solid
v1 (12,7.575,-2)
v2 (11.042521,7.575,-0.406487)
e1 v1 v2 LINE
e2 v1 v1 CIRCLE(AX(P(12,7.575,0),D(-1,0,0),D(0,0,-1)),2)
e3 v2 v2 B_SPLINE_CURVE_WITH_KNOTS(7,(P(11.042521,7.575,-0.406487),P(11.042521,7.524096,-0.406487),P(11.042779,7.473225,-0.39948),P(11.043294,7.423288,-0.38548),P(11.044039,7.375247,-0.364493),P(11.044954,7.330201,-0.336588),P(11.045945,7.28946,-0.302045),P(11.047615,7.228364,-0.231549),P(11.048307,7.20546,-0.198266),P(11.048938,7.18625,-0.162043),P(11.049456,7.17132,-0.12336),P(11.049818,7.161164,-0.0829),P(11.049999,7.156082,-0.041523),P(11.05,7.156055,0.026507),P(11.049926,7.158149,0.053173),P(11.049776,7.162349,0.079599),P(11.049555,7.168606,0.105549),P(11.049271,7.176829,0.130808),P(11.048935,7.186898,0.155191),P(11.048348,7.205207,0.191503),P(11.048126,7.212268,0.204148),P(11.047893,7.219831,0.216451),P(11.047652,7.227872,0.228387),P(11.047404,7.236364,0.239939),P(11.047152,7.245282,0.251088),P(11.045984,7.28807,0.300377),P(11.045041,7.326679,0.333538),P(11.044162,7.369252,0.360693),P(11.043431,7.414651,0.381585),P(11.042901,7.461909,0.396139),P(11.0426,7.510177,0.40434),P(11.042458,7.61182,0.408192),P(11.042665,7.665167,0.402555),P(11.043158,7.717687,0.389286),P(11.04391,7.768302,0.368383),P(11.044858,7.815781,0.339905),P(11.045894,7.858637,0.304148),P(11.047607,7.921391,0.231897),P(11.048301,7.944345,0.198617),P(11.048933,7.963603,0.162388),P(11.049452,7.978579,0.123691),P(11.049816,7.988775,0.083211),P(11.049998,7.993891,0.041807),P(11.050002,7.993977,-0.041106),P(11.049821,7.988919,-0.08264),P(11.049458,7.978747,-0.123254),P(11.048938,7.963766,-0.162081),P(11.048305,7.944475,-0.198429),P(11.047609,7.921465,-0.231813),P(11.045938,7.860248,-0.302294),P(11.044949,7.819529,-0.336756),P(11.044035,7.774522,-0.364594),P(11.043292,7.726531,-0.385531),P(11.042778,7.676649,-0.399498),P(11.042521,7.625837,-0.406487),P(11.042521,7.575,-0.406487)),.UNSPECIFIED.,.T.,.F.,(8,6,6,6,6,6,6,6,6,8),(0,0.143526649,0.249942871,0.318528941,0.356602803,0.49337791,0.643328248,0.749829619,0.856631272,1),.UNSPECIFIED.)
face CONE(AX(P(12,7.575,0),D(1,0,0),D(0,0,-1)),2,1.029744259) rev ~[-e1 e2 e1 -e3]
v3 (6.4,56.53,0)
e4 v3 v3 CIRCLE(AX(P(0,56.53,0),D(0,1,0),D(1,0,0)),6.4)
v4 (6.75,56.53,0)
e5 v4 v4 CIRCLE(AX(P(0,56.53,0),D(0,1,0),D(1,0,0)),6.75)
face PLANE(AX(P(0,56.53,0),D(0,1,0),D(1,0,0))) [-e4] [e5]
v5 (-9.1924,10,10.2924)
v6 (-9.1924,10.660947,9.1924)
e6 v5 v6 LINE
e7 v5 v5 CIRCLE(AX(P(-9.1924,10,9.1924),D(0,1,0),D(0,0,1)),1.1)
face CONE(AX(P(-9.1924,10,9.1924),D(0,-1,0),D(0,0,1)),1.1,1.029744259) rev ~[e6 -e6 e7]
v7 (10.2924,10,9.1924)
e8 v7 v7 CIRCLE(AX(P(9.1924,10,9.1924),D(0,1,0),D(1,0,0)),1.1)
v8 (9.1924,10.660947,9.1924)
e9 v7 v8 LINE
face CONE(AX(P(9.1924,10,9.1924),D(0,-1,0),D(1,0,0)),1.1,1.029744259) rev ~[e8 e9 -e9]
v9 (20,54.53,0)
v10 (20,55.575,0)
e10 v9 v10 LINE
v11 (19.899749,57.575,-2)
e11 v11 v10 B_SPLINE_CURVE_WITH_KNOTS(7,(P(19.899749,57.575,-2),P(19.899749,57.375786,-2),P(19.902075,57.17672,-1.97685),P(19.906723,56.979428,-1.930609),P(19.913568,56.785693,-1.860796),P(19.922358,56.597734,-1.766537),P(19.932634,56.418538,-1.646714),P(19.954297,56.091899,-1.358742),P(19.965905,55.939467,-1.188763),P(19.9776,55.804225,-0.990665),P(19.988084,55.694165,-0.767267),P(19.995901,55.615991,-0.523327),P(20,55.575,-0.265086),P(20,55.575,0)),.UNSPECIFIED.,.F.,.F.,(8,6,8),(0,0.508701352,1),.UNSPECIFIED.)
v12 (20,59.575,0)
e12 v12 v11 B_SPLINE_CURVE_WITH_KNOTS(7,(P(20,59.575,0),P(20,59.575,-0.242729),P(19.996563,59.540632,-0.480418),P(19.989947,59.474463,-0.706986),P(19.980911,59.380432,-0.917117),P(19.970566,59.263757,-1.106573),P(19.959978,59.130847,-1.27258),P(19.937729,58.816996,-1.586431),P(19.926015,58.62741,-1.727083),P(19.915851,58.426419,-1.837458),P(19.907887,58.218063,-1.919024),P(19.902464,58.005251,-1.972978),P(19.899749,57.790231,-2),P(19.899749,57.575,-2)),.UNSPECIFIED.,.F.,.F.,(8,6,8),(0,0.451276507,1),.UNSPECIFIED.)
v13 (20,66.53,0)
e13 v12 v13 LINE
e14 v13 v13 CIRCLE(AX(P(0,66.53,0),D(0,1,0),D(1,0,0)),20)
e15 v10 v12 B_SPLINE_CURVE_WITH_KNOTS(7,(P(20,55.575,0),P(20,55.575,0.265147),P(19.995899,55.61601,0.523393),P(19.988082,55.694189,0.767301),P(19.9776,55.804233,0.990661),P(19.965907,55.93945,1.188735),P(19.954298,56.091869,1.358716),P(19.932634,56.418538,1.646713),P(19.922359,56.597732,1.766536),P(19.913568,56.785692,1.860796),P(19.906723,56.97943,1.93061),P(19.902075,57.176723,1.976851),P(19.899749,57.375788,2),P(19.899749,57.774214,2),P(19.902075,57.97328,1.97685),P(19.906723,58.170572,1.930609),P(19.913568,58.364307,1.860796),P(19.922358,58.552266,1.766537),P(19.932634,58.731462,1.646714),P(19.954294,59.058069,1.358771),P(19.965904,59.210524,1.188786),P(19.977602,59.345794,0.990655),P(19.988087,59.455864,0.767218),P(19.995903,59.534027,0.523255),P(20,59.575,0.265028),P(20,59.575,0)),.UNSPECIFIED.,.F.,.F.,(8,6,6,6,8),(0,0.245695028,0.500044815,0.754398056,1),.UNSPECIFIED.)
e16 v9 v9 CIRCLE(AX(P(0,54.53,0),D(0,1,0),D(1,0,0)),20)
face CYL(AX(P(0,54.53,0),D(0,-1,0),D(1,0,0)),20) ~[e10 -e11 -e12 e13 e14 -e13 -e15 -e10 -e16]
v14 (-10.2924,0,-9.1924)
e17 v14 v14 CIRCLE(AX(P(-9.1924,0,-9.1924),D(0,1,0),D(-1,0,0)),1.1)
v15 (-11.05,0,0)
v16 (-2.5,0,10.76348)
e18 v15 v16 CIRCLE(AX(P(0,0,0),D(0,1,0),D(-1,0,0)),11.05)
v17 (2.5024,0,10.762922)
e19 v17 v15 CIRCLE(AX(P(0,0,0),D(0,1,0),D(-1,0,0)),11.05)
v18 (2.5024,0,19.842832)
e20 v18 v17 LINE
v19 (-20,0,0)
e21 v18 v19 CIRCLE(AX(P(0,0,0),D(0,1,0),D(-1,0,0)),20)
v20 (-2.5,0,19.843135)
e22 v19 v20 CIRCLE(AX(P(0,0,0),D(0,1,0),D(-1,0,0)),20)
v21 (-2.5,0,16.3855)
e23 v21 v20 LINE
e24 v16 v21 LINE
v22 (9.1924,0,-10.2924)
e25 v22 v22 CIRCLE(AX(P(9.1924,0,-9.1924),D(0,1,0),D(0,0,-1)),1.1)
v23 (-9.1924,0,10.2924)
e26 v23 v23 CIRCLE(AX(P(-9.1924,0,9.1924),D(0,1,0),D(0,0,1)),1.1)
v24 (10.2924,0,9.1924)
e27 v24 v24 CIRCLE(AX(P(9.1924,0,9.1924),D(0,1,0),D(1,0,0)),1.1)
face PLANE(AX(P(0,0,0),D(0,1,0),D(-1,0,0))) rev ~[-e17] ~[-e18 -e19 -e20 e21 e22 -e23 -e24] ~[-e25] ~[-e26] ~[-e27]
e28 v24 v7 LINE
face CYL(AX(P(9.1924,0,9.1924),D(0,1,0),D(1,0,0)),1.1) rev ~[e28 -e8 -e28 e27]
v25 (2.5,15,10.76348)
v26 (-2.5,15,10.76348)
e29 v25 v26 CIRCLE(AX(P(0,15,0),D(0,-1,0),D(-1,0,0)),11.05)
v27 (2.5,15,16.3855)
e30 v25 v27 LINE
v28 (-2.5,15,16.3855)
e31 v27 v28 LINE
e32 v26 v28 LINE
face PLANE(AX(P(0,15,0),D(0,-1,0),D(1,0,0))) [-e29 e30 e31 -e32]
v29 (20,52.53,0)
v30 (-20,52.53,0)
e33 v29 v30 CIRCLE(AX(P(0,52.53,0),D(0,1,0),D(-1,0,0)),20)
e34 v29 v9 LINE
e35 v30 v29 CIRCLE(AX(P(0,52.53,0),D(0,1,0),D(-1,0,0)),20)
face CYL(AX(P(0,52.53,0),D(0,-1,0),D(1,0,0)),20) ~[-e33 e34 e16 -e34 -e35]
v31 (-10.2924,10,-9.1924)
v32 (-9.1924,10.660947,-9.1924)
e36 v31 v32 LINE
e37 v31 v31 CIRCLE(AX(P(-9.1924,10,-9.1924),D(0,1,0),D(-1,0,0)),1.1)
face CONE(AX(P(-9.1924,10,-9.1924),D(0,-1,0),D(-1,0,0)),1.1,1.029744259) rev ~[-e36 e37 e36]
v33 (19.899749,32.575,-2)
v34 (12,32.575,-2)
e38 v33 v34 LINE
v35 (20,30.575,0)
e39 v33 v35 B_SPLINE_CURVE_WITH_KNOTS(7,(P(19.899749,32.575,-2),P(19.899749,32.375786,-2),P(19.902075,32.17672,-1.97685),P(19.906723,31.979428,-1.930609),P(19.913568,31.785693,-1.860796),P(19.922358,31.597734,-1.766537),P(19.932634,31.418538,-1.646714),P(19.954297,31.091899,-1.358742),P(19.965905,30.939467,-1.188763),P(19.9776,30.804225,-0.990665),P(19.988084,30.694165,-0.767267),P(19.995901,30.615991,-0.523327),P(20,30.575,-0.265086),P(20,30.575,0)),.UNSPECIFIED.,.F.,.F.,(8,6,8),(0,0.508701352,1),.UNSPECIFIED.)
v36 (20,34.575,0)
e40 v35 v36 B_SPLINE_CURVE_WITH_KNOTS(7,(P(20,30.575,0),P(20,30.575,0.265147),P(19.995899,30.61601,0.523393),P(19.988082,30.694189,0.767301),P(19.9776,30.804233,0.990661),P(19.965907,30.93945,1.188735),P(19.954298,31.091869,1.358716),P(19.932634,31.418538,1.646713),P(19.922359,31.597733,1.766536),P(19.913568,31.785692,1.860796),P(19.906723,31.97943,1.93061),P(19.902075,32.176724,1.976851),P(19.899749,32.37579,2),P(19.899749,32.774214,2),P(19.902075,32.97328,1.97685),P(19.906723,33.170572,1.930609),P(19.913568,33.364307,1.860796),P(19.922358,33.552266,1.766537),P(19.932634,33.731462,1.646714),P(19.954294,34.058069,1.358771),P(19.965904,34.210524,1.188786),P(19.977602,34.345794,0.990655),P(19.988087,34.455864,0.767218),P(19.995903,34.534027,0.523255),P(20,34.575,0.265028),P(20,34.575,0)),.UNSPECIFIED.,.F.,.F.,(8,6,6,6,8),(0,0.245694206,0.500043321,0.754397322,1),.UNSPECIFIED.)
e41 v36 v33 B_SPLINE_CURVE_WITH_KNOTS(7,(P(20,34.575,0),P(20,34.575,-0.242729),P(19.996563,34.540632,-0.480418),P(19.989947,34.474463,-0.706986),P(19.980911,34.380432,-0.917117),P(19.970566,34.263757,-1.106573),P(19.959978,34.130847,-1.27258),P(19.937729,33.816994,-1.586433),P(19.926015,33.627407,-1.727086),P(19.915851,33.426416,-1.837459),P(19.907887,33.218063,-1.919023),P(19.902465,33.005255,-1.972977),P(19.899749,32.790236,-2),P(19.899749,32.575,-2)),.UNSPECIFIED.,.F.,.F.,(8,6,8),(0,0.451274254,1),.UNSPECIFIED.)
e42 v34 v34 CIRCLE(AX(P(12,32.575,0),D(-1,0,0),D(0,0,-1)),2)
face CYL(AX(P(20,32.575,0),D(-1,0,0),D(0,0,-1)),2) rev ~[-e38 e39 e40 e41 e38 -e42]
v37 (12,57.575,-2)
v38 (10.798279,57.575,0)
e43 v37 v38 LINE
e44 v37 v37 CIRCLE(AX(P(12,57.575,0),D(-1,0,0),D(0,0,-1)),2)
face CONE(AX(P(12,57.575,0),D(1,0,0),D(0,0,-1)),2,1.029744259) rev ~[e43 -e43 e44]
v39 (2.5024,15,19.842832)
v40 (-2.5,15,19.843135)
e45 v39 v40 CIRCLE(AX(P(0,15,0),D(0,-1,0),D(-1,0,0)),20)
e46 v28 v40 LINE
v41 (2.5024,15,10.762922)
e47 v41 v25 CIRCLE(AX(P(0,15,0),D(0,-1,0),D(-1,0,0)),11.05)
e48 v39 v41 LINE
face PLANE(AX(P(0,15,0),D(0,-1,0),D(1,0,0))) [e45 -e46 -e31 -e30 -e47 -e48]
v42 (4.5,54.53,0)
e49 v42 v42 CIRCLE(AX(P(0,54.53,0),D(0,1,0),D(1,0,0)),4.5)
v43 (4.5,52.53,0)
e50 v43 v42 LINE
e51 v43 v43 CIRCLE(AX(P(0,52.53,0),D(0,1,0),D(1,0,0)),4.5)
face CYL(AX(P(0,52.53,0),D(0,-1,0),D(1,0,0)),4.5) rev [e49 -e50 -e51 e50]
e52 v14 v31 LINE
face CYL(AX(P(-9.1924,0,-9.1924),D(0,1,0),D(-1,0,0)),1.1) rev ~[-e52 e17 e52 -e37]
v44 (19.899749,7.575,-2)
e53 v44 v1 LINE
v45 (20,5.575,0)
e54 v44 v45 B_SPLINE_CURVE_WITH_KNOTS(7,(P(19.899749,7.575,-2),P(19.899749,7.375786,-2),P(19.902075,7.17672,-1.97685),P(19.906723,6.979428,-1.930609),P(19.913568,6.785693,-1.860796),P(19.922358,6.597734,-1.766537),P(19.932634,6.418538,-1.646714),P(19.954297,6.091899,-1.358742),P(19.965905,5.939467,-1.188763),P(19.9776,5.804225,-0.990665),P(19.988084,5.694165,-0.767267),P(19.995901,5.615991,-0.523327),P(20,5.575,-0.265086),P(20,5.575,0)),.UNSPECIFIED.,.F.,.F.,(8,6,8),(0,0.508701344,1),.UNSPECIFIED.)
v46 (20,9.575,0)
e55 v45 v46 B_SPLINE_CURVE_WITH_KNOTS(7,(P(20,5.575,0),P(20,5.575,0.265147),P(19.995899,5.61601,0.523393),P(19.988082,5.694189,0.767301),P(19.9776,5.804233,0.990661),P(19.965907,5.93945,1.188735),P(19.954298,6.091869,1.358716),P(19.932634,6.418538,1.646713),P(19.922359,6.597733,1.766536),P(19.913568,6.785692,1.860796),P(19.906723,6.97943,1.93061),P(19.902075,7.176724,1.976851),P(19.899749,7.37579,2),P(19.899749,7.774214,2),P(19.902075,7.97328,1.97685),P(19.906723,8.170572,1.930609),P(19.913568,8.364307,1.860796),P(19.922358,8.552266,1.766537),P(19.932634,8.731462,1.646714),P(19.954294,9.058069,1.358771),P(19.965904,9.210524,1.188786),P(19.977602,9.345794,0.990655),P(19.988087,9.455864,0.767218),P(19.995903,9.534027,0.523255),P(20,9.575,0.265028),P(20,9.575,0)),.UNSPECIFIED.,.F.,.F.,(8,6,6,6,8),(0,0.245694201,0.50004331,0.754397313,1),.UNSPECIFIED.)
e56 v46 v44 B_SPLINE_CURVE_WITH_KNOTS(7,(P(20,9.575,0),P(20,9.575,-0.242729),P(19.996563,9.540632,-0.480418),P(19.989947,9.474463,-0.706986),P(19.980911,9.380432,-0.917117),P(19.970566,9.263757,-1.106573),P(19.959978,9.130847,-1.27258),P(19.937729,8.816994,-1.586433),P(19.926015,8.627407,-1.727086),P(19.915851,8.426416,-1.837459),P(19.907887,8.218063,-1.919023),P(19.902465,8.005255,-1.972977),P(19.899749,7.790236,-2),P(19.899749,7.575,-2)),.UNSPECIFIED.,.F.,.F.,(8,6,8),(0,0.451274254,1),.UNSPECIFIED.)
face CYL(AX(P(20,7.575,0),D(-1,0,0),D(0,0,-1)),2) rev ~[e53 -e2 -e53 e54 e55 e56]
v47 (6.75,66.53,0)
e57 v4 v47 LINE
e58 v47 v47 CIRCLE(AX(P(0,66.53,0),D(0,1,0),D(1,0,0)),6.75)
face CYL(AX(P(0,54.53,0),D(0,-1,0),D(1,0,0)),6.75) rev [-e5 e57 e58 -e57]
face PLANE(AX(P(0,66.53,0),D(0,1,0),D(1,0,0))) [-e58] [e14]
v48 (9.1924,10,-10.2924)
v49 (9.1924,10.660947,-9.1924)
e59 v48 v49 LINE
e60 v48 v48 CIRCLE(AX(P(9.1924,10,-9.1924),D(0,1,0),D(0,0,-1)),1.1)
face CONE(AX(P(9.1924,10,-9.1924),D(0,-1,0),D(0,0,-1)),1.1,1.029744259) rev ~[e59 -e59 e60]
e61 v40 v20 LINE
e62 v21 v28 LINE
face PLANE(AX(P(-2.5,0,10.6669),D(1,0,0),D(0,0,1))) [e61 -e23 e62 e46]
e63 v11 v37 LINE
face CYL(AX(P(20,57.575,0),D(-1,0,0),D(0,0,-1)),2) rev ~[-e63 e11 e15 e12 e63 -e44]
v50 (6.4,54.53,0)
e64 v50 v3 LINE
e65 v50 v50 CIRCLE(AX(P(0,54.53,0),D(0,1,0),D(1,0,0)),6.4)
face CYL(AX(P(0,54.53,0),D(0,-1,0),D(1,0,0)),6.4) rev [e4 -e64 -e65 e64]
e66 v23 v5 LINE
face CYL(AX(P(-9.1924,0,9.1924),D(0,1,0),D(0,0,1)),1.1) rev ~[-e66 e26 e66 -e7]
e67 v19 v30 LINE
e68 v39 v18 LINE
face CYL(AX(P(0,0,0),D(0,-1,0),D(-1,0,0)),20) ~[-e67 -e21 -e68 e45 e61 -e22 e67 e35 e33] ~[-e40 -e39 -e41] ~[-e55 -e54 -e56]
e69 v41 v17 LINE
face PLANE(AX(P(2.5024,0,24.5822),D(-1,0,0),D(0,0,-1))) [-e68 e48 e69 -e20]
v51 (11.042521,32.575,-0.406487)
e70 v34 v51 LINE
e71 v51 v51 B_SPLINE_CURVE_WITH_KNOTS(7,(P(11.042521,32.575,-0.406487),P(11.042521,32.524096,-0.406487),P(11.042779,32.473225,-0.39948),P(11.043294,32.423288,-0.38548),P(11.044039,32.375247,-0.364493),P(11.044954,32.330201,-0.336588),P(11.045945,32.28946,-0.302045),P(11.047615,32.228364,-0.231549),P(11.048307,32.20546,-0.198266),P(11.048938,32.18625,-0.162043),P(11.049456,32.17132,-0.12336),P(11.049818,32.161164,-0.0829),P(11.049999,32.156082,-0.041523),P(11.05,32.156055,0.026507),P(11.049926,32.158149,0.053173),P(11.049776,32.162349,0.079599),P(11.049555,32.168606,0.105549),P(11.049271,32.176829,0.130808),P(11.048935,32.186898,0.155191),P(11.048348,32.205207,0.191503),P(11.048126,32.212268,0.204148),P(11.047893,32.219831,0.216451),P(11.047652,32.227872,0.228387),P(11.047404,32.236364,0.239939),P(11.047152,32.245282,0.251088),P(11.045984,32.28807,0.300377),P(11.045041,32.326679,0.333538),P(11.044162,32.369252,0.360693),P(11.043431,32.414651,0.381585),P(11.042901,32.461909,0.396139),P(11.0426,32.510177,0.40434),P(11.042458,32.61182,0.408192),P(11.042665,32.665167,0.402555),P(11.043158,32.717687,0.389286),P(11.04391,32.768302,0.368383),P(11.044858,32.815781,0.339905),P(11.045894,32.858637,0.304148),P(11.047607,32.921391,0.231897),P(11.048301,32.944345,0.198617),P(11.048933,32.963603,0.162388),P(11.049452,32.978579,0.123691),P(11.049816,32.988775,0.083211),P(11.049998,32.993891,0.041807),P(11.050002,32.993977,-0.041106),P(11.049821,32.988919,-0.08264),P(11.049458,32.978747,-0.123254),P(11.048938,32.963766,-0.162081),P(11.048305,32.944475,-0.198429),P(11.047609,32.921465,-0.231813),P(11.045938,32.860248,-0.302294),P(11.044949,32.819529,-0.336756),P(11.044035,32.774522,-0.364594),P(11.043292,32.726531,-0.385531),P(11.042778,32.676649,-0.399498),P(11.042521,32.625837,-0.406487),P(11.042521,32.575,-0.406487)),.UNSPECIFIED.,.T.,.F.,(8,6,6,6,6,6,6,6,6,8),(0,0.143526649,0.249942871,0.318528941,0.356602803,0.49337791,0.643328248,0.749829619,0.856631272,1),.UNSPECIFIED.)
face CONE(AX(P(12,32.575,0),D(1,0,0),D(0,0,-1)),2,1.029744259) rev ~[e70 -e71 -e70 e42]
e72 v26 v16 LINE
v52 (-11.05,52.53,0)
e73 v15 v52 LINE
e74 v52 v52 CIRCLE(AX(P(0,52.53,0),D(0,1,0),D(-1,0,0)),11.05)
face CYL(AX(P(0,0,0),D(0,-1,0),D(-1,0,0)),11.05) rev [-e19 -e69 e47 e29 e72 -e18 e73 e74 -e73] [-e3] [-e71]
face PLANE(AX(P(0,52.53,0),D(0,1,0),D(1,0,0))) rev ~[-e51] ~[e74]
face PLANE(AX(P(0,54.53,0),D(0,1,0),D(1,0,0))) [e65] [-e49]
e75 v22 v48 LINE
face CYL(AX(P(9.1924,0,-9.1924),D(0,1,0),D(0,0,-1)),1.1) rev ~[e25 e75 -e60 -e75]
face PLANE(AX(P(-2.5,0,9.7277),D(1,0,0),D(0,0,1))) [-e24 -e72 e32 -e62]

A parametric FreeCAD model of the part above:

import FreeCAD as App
import Part
import Sketcher

V = App.Vector


def add_polygon(sketch, points):
    """Adds a closed chain of lines whose ends are joined by coincident constraints."""
    first, n = sketch.GeometryCount, len(points)
    for a, b in zip(points, points[1:] + points[:1]):
        sketch.addGeometry(Part.LineSegment(App.Vector(*a, 0), App.Vector(*b, 0)), False)
    for i in range(n):
        sketch.addConstraint(Sketcher.Constraint("Coincident", first + i, 2, first + (i + 1) % n, 1))

doc = App.newDocument("Part")
body = doc.addObject("PartDesign::Body", "Body")

# Sketch on XZ plane
sketch1 = body.newObject("Sketcher::SketchObject", "Sketch")
sketch1.AttachmentSupport = (doc.getObject("XZ_Plane"), [""])
sketch1.MapMode = "FlatFace"
sketch1.addGeometry(Part.Circle(V(0, 0, 0), V(0, 0, 1), 20), False)
sketch1.addGeometry(Part.Circle(V(0, 0, 0), V(0, 0, 1), 11.05), False)
sketch1.addConstraint(Sketcher.Constraint("Coincident", 0, 3, -1, 1))
sketch1.addConstraint(Sketcher.Constraint("Coincident", 1, 3, -1, 1))
sketch1.addConstraint(Sketcher.Constraint("Diameter", 0, 40.0))
sketch1.addConstraint(Sketcher.Constraint("Diameter", 1, 22.1))
pad1 = body.newObject("PartDesign::Pad", "Pad")
pad1.Profile = sketch1
pad1.Length = 52.53
pad1.Reversed = True

# Sketch on XZ plane
sketch2 = body.newObject("Sketcher::SketchObject", "Sketch001")
sketch2.AttachmentSupport = (doc.getObject("XZ_Plane"), [""])
sketch2.MapMode = "FlatFace"
sketch2.addGeometry(Part.Circle(V(9.1924, -9.1924, 0), V(0, 0, 1), 1.1), False)
sketch2.addConstraint(Sketcher.Constraint("Diameter", 0, 2.2))
sketch2.addConstraint(Sketcher.Constraint("DistanceX", -1, 1, 0, 3, 9.1924))
sketch2.addConstraint(Sketcher.Constraint("DistanceY", 0, 3, -1, 1, 9.1924))
doc.recompute()
hole = body.newObject("PartDesign::Hole", "Hole")
hole.Profile = sketch2
hole.ThreadType = "None"
hole.Diameter = 2.2
hole.DepthType = "Dimension"
hole.Depth = 10
hole.DrillPoint = "Angled"
hole.DrillPointAngle = 118
doc.recompute()

polarpattern = body.newObject("PartDesign::PolarPattern", "PolarPattern")
polarpattern.Originals = [hole]
polarpattern.Axis = (doc.getObject("Y_Axis"), [""])
polarpattern.Angle = 360
polarpattern.Occurrences = 4
body.Tip = polarpattern

# Sketch on XZ plane
sketch3 = body.newObject("Sketcher::SketchObject", "Sketch002")
sketch3.AttachmentSupport = (doc.getObject("XZ_Plane"), [""])
sketch3.MapMode = "FlatFace"
sketch3.AttachmentOffset = App.Placement(V(0, 0, -52.53), App.Rotation())
sketch3.addGeometry(Part.Circle(V(0, 0, 0), V(0, 0, 1), 20), False)
sketch3.addGeometry(Part.Circle(V(0, 0, 0), V(0, 0, 1), 4.5), False)
sketch3.addConstraint(Sketcher.Constraint("Coincident", 0, 3, -1, 1))
sketch3.addConstraint(Sketcher.Constraint("Coincident", 1, 3, -1, 1))
sketch3.addConstraint(Sketcher.Constraint("Diameter", 0, 40.0))
sketch3.addConstraint(Sketcher.Constraint("Diameter", 1, 9.0))
pad2 = body.newObject("PartDesign::Pad", "Pad001")
pad2.Profile = sketch3
pad2.Length = 2
pad2.Reversed = True

# Sketch on XZ plane
sketch4 = body.newObject("Sketcher::SketchObject", "Sketch003")
sketch4.AttachmentSupport = (doc.getObject("XZ_Plane"), [""])
sketch4.MapMode = "FlatFace"
sketch4.AttachmentOffset = App.Placement(V(0, 0, -54.53), App.Rotation())
sketch4.addGeometry(Part.Circle(V(0, 0, 0), V(0, 0, 1), 20), False)
sketch4.addGeometry(Part.Circle(V(0, 0, 0), V(0, 0, 1), 6.75), False)
sketch4.addConstraint(Sketcher.Constraint("Coincident", 0, 3, -1, 1))
sketch4.addConstraint(Sketcher.Constraint("Coincident", 1, 3, -1, 1))
sketch4.addConstraint(Sketcher.Constraint("Diameter", 0, 40.0))
sketch4.addConstraint(Sketcher.Constraint("Diameter", 1, 13.5))
pad3 = body.newObject("PartDesign::Pad", "Pad002")
pad3.Profile = sketch4
pad3.Length = 12
pad3.Reversed = True

# Sketch on XZ plane
sketch5 = body.newObject("Sketcher::SketchObject", "Sketch004")
sketch5.AttachmentSupport = (doc.getObject("XZ_Plane"), [""])
sketch5.MapMode = "FlatFace"
add_polygon(sketch5, [(2.5, 16.3855), (-2.5, 16.3855), (-2.5, 9.7277), (2.5, 9.7277)])  # lines 0-3
sketch5.addConstraint(Sketcher.Constraint("Horizontal", 0))
sketch5.addConstraint(Sketcher.Constraint("Vertical", 1))
sketch5.addConstraint(Sketcher.Constraint("Horizontal", 2))
sketch5.addConstraint(Sketcher.Constraint("Vertical", 3))
sketch5.addConstraint(Sketcher.Constraint("DistanceX", 0, 2, -1, 1, 2.5))
sketch5.addConstraint(Sketcher.Constraint("DistanceX", -1, 1, 2, 2, 2.5))
sketch5.addConstraint(Sketcher.Constraint("DistanceY", 1, 2, 1, 1, 6.6578))
sketch5.addConstraint(Sketcher.Constraint("DistanceY", -1, 1, 0, 2, 16.3855))
pocket1 = body.newObject("PartDesign::Pocket", "Pocket")
pocket1.Profile = sketch5
pocket1.Length = 15

# Sketch on XZ plane
sketch6 = body.newObject("Sketcher::SketchObject", "Sketch005")
sketch6.AttachmentSupport = (doc.getObject("XZ_Plane"), [""])
sketch6.MapMode = "FlatFace"
add_polygon(sketch6, [(-2.5, 10.6669), (2.5024, 10.6669), (2.5024, 24.5822), (-2.5, 24.5822)])  # lines 0-3
sketch6.addConstraint(Sketcher.Constraint("Horizontal", 0))
sketch6.addConstraint(Sketcher.Constraint("Vertical", 1))
sketch6.addConstraint(Sketcher.Constraint("Horizontal", 2))
sketch6.addConstraint(Sketcher.Constraint("Vertical", 3))
sketch6.addConstraint(Sketcher.Constraint("DistanceX", 2, 2, -1, 1, 2.5))
sketch6.addConstraint(Sketcher.Constraint("DistanceX", 0, 1, 0, 2, 5.0024))
sketch6.addConstraint(Sketcher.Constraint("DistanceY", 1, 1, 1, 2, 13.9153))
sketch6.addConstraint(Sketcher.Constraint("DistanceY", -1, 1, 0, 2, 10.667))
pocket2 = body.newObject("PartDesign::Pocket", "Pocket001")
pocket2.Profile = sketch6
pocket2.Length = 15

# Sketch on YZ plane
sketch7 = body.newObject("Sketcher::SketchObject", "Sketch006")
sketch7.AttachmentSupport = (doc.getObject("YZ_Plane"), [""])
sketch7.MapMode = "FlatFace"
sketch7.AttachmentOffset = App.Placement(V(0, 0, 20), App.Rotation())
sketch7.addGeometry(Part.Circle(V(57.575, 0, 0), V(0, 0, 1), 2), False)
sketch7.addConstraint(Sketcher.Constraint("PointOnObject", 0, 3, -1))
sketch7.addConstraint(Sketcher.Constraint("Diameter", 0, 4.0))
sketch7.addConstraint(Sketcher.Constraint("DistanceX", -1, 1, 0, 3, 57.575))
doc.recompute()
hole2 = body.newObject("PartDesign::Hole", "Hole001")
hole2.Profile = sketch7
hole2.ThreadType = "None"
hole2.Diameter = 4
hole2.DepthType = "Dimension"
hole2.Depth = 8
hole2.DrillPoint = "Angled"
hole2.DrillPointAngle = 118

# Sketch on YZ plane
sketch8 = body.newObject("Sketcher::SketchObject", "Sketch007")
sketch8.AttachmentSupport = (doc.getObject("YZ_Plane"), [""])
sketch8.MapMode = "FlatFace"
sketch8.AttachmentOffset = App.Placement(V(0, 0, 20), App.Rotation())
sketch8.addGeometry(Part.Circle(V(7.575, 0, 0), V(0, 0, 1), 2), False)
sketch8.addGeometry(Part.Circle(V(32.575, 0, 0), V(0, 0, 1), 2), False)
sketch8.addConstraint(Sketcher.Constraint("Equal", 0, 1))
sketch8.addConstraint(Sketcher.Constraint("PointOnObject", 0, 3, -1))
sketch8.addConstraint(Sketcher.Constraint("PointOnObject", 1, 3, -1))
sketch8.addConstraint(Sketcher.Constraint("Diameter", 0, 4.0))
sketch8.addConstraint(Sketcher.Constraint("DistanceX", 0, 3, 1, 3, 25.0))
sketch8.addConstraint(Sketcher.Constraint("DistanceX", -1, 1, 0, 3, 7.575))
doc.recompute()
hole3 = body.newObject("PartDesign::Hole", "Hole002")
hole3.Profile = sketch8
hole3.ThreadType = "None"
hole3.Diameter = 4
hole3.DepthType = "Dimension"
hole3.Depth = 8
hole3.DrillPoint = "Angled"
hole3.DrillPointAngle = 118

# Sketch on XZ plane
sketch9 = body.newObject("Sketcher::SketchObject", "Sketch008")
sketch9.AttachmentSupport = (doc.getObject("XZ_Plane"), [""])
sketch9.MapMode = "FlatFace"
sketch9.AttachmentOffset = App.Placement(V(0, 0, -54.53), App.Rotation())
sketch9.addGeometry(Part.Circle(V(0, 0, 0), V(0, 0, 1), 6.75), False)
sketch9.addGeometry(Part.Circle(V(0, 0, 0), V(0, 0, 1), 6.4), False)
sketch9.addConstraint(Sketcher.Constraint("Coincident", 0, 3, -1, 1))
sketch9.addConstraint(Sketcher.Constraint("Coincident", 1, 3, -1, 1))
sketch9.addConstraint(Sketcher.Constraint("Diameter", 0, 13.5))
sketch9.addConstraint(Sketcher.Constraint("Diameter", 1, 12.8))
pad4 = body.newObject("PartDesign::Pad", "Pad003")
pad4.Profile = sketch9
pad4.Length = 2
pad4.Reversed = True

doc.recompute()
